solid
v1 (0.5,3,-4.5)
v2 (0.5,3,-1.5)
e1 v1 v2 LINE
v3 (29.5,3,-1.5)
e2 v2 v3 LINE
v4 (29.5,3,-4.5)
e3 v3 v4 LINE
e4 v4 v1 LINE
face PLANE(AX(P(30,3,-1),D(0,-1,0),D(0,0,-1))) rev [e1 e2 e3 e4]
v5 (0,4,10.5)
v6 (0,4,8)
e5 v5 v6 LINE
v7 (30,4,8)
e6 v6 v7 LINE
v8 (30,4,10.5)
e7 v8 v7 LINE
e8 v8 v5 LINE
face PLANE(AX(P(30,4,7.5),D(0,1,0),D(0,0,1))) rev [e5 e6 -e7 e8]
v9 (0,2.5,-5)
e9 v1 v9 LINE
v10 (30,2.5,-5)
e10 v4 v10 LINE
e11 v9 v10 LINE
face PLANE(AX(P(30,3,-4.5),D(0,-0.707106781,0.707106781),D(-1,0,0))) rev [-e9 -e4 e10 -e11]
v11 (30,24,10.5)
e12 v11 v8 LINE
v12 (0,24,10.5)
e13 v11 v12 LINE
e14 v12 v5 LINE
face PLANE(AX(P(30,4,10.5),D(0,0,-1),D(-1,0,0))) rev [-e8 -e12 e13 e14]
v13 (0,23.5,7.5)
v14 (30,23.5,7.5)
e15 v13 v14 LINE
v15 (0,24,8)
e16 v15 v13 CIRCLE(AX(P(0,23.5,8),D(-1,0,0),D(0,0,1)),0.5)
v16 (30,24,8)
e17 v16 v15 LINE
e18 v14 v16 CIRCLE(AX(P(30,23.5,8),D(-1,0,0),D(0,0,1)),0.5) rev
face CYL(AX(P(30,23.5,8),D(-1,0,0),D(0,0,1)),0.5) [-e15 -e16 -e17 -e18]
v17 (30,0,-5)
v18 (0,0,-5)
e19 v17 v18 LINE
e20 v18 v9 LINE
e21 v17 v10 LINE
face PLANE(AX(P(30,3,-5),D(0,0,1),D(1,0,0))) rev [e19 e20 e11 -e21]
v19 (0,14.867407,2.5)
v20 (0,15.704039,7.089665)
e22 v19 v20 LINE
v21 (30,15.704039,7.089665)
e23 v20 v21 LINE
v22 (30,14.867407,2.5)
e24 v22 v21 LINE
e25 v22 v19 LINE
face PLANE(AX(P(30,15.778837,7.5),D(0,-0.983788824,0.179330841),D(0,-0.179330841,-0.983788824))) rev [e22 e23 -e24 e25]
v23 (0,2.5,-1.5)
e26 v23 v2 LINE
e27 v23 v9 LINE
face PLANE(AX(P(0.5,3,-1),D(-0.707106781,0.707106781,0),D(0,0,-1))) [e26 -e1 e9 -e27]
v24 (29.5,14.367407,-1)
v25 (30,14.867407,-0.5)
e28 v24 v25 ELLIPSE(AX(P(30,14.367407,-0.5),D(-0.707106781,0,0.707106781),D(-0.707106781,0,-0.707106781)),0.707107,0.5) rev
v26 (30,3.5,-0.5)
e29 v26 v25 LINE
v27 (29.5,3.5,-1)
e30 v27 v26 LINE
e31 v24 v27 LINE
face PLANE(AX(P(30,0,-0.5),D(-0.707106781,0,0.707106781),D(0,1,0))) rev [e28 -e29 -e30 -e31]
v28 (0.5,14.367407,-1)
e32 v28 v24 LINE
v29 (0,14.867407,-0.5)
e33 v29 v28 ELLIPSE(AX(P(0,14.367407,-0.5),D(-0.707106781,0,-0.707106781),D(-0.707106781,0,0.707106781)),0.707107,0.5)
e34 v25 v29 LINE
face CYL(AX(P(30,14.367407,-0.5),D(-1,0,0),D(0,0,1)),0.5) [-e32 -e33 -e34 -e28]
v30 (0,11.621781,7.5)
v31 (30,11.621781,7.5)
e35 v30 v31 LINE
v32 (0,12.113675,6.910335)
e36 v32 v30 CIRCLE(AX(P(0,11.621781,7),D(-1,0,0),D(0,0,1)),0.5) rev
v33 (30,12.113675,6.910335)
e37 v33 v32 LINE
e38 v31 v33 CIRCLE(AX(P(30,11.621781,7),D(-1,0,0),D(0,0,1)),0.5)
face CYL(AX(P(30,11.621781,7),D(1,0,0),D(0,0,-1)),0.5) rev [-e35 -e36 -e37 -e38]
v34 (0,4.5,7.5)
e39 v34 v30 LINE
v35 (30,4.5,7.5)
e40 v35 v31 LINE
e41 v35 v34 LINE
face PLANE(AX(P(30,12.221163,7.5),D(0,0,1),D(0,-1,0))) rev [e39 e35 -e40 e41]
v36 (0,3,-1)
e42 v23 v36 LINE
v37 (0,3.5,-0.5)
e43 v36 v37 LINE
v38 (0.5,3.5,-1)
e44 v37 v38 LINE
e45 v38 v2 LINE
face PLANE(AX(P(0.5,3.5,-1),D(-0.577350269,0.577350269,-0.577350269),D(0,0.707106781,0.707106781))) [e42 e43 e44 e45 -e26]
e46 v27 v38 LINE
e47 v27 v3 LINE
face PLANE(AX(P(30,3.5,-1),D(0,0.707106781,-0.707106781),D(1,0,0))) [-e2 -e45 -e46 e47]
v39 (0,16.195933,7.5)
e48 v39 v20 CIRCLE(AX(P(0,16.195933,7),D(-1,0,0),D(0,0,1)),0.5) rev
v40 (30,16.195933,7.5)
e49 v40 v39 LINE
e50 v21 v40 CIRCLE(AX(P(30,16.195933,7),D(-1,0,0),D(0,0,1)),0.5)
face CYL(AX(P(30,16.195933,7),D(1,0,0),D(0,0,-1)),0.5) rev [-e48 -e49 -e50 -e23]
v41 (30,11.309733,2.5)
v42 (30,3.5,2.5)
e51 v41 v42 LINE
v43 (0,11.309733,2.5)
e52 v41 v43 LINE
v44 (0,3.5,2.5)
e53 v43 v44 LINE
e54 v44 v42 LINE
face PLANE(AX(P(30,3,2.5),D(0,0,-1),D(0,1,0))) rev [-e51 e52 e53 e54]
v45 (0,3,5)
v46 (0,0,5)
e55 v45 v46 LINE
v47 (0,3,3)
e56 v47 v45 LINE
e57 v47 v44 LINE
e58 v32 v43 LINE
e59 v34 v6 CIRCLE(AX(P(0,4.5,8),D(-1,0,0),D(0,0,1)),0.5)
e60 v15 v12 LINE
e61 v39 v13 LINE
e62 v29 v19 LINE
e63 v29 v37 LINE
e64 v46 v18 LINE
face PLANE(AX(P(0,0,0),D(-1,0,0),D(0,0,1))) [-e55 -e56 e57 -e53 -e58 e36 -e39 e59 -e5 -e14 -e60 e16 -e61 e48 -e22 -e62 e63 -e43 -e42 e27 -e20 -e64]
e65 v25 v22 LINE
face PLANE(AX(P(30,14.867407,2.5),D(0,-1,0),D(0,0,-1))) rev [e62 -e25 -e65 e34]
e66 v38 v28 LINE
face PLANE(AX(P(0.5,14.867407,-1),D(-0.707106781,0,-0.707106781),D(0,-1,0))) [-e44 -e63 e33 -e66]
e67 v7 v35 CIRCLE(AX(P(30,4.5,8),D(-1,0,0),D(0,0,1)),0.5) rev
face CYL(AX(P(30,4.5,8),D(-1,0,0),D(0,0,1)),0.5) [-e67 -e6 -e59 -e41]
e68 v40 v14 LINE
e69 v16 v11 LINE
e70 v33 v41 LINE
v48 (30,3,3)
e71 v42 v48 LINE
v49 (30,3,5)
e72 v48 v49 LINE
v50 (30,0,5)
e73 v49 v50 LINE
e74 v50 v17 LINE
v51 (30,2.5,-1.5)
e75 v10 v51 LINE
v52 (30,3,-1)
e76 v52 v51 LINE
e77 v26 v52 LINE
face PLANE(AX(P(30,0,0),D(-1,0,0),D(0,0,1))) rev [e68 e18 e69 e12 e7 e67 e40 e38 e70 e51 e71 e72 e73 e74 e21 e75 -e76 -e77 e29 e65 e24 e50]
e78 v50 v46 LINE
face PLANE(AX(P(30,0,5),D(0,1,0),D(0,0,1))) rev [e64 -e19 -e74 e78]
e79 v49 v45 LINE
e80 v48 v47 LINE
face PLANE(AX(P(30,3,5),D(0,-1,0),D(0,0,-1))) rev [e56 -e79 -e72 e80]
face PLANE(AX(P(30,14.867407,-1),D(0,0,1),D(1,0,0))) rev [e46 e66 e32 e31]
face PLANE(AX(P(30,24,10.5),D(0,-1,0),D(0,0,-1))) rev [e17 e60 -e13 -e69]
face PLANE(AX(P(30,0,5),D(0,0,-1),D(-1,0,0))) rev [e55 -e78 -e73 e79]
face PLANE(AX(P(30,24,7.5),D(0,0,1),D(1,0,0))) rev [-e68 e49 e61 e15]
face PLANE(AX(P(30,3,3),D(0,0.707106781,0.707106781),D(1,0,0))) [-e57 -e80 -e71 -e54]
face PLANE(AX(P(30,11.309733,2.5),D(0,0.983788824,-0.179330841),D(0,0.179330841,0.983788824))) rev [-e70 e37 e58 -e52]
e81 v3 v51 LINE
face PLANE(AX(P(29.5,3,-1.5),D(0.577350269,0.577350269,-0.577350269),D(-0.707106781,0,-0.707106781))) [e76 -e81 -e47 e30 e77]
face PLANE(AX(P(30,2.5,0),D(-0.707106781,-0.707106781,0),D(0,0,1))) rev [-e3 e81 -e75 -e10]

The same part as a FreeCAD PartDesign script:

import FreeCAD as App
import Part
import Sketcher


def edges_at(feature, points):
    """Names of the edges that pass closest to the given points."""
    edges = feature.Shape.Edges
    near = lambda p: min(range(len(edges)), key=lambda i: edges[i].distToShape(Part.Vertex(*p))[0])
    return sorted({f"Edge{near(p) + 1}" for p in points})


def add_polygon(sketch, points):
    """Adds a closed chain of lines whose ends are joined by coincident constraints."""
    first, n = sketch.GeometryCount, len(points)
    for a, b in zip(points, points[1:] + points[:1]):
        sketch.addGeometry(Part.LineSegment(App.Vector(*a, 0), App.Vector(*b, 0)), False)
    for i in range(n):
        sketch.addConstraint(Sketcher.Constraint("Coincident", first + i, 2, first + (i + 1) % n, 1))

doc = App.newDocument("Part")
body = doc.addObject("PartDesign::Body", "Body")

# Sketch on YZ plane
sketch1 = doc.addObject("Sketcher::SketchObject", "Sketch")
body.addObject(sketch1)
sketch1.AttachmentSupport = (doc.YZ_Plane, [""])
sketch1.MapMode = "FlatFace"
add_polygon(sketch1, [(3, 5), (0, 5), (0, -5), (3, -5), (3, -1), (14.867407, -1), (14.867407, 2.5), (15.778837, 7.5), (24, 7.5), (24, 10.5), (4, 10.5), (4, 7.5), (12.221163, 7.5), (11.309733, 2.5), (3, 2.5)])  # lines 0-14
sketch1.addConstraint([
    Sketcher.Constraint("Horizontal", 0),
    Sketcher.Constraint("Vertical", 1),
    Sketcher.Constraint("Horizontal", 2),
    Sketcher.Constraint("Vertical", 3),
    Sketcher.Constraint("Horizontal", 4),
    Sketcher.Constraint("Vertical", 5),
    Sketcher.Constraint("Horizontal", 7),
    Sketcher.Constraint("Vertical", 8),
    Sketcher.Constraint("Horizontal", 9),
    Sketcher.Constraint("Vertical", 10),
    Sketcher.Constraint("Horizontal", 11),
    Sketcher.Constraint("Horizontal", 13),
    Sketcher.Constraint("Vertical", 14),
    Sketcher.Constraint("Symmetric", 0, 2, 1, 2, -1, 1),
    Sketcher.Constraint("Parallel", 6, 12),
    Sketcher.Constraint("Horizontal", 7, 2, 10, 2),
    Sketcher.Constraint("Horizontal", 5, 2, 12, 2),
    Sketcher.Constraint("Vertical", 3, 2, 13, 2),
    Sketcher.Constraint("Equal", 7, 11),
    Sketcher.Constraint("Equal", 2, 8),
    Sketcher.Constraint("DistanceX", 0, 2, 0, 1, 3.0),
    Sketcher.Constraint("DistanceX", 9, 2, 9, 1, 20.0),
    Sketcher.Constraint("DistanceY", 1, 2, 1, 1, 10.0),
    Sketcher.Constraint("DistanceY", 3, 1, 3, 2, 4.0),
    Sketcher.Constraint("DistanceY", 5, 1, 5, 2, 3.5),
    Sketcher.Constraint("DistanceX", -1, 1, 7, 2, 24.0),
    Sketcher.Constraint("DistanceY", 5, 2, 6, 2, 5.0),
    Sketcher.Constraint("Distance", 6, 5.082392),
    Sketcher.Constraint("DistanceX", 4, 1, 4, 2, 11.867407),
])
pad1 = doc.addObject("PartDesign::Pad", "Pad")
body.addObject(pad1)
pad1.Profile = sketch1
pad1.Length = 30
doc.recompute()

chamfer = doc.addObject("PartDesign::Chamfer", "Chamfer")
body.addObject(chamfer)
chamfer.Base = (pad1, edges_at(pad1, [
    (15, 3, 2.5),
    (0, 3, -3),
    (30, 8.934, -1),
    (0, 8.934, -1),
    (15, 3, -5),
    (30, 3, -3),
    (15, 3, -1),
]))
chamfer.Size = 0.5
doc.recompute()

fillet = doc.addObject("PartDesign::Fillet", "Fillet")
body.addObject(fillet)
fillet.Base = (chamfer, edges_at(chamfer, [
    (15, 4, 7.5),
    (15, 24, 7.5),
    (15, 12.221, 7.5),
    (15, 15.779, 7.5),
    (15, 14.867, -1),
]))
fillet.Radius = 0.5

doc.recompute()
